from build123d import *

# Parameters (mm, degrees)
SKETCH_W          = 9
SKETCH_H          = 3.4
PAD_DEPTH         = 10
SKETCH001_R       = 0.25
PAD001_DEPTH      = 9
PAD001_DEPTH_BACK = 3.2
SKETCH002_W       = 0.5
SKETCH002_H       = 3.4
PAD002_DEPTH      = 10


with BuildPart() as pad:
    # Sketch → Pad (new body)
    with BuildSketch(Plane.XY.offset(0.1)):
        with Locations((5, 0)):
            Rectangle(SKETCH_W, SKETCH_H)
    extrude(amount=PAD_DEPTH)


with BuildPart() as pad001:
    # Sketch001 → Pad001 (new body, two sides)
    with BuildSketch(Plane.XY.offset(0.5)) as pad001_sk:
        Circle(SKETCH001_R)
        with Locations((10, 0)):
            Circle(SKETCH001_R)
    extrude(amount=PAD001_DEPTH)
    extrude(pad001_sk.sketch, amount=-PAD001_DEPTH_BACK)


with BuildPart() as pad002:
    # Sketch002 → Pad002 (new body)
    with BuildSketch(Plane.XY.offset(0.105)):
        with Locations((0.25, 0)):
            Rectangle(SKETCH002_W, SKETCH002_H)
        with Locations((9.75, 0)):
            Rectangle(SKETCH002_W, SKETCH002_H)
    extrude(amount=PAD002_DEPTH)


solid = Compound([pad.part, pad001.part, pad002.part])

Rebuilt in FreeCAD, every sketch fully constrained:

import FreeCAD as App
import Part
import Sketcher

V = App.Vector
Q = App.Units.Quantity

doc = App.newDocument("Part")
body = doc.addObject("PartDesign::Body", "Body")

# Sketch on XY plane
sketch1 = body.newObject("Sketcher::SketchObject", "Sketch")
sketch1.AttachmentSupport = (doc.getObject("XY_Plane"), [""])
sketch1.MapMode = "FlatFace"
sketch1.AttachmentOffset = App.Placement(V(0, 0, 0.1), App.Rotation())
sketch1.addGeometry(Part.LineSegment(V(0.5, 1.7, 0), V(0.5, -1.7, 0)), False)
sketch1.addGeometry(Part.LineSegment(V(0.5, -1.7, 0), V(9.5, -1.7, 0)), False)
sketch1.addGeometry(Part.LineSegment(V(9.5, -1.7, 0), V(9.5, 1.7, 0)), False)
sketch1.addGeometry(Part.LineSegment(V(9.5, 1.7, 0), V(0.5, 1.7, 0)), False)
sketch1.addConstraint(Sketcher.Constraint("Coincident", 0, 2, 1, 1))
sketch1.addConstraint(Sketcher.Constraint("Coincident", 1, 2, 2, 1))
sketch1.addConstraint(Sketcher.Constraint("Coincident", 2, 2, 3, 1))
sketch1.addConstraint(Sketcher.Constraint("Coincident", 3, 2, 0, 1))
sketch1.addConstraint(Sketcher.Constraint("Vertical", 0))
sketch1.addConstraint(Sketcher.Constraint("Horizontal", 1))
sketch1.addConstraint(Sketcher.Constraint("Vertical", 2))
sketch1.addConstraint(Sketcher.Constraint("Horizontal", 3))
sketch1.addConstraint(Sketcher.Constraint("DistanceX", 1, 1, 1, 2, Q("9 mm")))
sketch1.addConstraint(Sketcher.Constraint("DistanceY", 0, 2, 0, 1, Q("3.4 mm")))
sketch1.addConstraint(Sketcher.Constraint("DistanceX", -1, 1, 0, 2, Q("0.5 mm")))
sketch1.addConstraint(Sketcher.Constraint("DistanceY", 0, 2, -1, 1, Q("1.7 mm")))
pad1 = body.newObject("PartDesign::Pad", "Pad")
pad1.Profile = sketch1
pad1.Length = 10
body2 = doc.addObject("PartDesign::Body", "Body001")
body2.AllowCompound = True

# Sketch on XY plane
sketch2 = body2.newObject("Sketcher::SketchObject", "Sketch001")
sketch2.AttachmentSupport = (doc.getObject("XY_Plane001"), [""])
sketch2.MapMode = "FlatFace"
sketch2.AttachmentOffset = App.Placement(V(0, 0, 0.5), App.Rotation())
sketch2.addGeometry(Part.Circle(V(0, 0, 0), V(0, 0, 1), 0.25), False)
sketch2.addGeometry(Part.Circle(V(10, 0, 0), V(0, 0, 1), 0.25), False)
sketch2.addConstraint(Sketcher.Constraint("Coincident", 0, 3, -1, 1))
sketch2.addConstraint(Sketcher.Constraint("Equal", 0, 1))
sketch2.addConstraint(Sketcher.Constraint("PointOnObject", 1, 3, -1))
sketch2.addConstraint(Sketcher.Constraint("Diameter", 0, Q("0.5 mm")))
sketch2.addConstraint(Sketcher.Constraint("DistanceX", -1, 1, 1, 3, Q("10 mm")))
pad2 = body2.newObject("PartDesign::Pad", "Pad001")
pad2.Profile = sketch2
pad2.Type = "TwoLengths"
pad2.Length = 9
pad2.Length2 = 3.2
body3 = doc.addObject("PartDesign::Body", "Body002")
body3.AllowCompound = True

# Sketch on XY plane
sketch3 = body3.newObject("Sketcher::SketchObject", "Sketch002")
sketch3.AttachmentSupport = (doc.getObject("XY_Plane002"), [""])
sketch3.MapMode = "FlatFace"
sketch3.AttachmentOffset = App.Placement(V(0, 0, 0.105), App.Rotation())
sketch3.addGeometry(Part.LineSegment(V(0, 1.7, 0), V(0, -1.7, 0)), False)
sketch3.addGeometry(Part.LineSegment(V(0, -1.7, 0), V(0.5, -1.7, 0)), False)
sketch3.addGeometry(Part.LineSegment(V(0.5, -1.7, 0), V(0.5, 1.7, 0)), False)
sketch3.addGeometry(Part.LineSegment(V(0.5, 1.7, 0), V(0, 1.7, 0)), False)
sketch3.addGeometry(Part.LineSegment(V(9.5, 1.7, 0), V(9.5, -1.7, 0)), False)
sketch3.addGeometry(Part.LineSegment(V(9.5, -1.7, 0), V(10, -1.7, 0)), False)
sketch3.addGeometry(Part.LineSegment(V(10, -1.7, 0), V(10, 1.7, 0)), False)
sketch3.addGeometry(Part.LineSegment(V(10, 1.7, 0), V(9.5, 1.7, 0)), False)
sketch3.addConstraint(Sketcher.Constraint("Coincident", 0, 2, 1, 1))
sketch3.addConstraint(Sketcher.Constraint("Coincident", 1, 2, 2, 1))
sketch3.addConstraint(Sketcher.Constraint("Coincident", 2, 2, 3, 1))
sketch3.addConstraint(Sketcher.Constraint("Coincident", 3, 2, 0, 1))
sketch3.addConstraint(Sketcher.Constraint("Coincident", 4, 2, 5, 1))
sketch3.addConstraint(Sketcher.Constraint("Coincident", 5, 2, 6, 1))
sketch3.addConstraint(Sketcher.Constraint("Coincident", 6, 2, 7, 1))
sketch3.addConstraint(Sketcher.Constraint("Coincident", 7, 2, 4, 1))
sketch3.addConstraint(Sketcher.Constraint("Vertical", 0))
sketch3.addConstraint(Sketcher.Constraint("Horizontal", 1))
sketch3.addConstraint(Sketcher.Constraint("Vertical", 2))
sketch3.addConstraint(Sketcher.Constraint("Horizontal", 3))
sketch3.addConstraint(Sketcher.Constraint("Vertical", 4))
sketch3.addConstraint(Sketcher.Constraint("Horizontal", 5))
sketch3.addConstraint(Sketcher.Constraint("Vertical", 6))
sketch3.addConstraint(Sketcher.Constraint("Horizontal", 7))
sketch3.addConstraint(Sketcher.Constraint("Symmetric", 0, 2, 3, 2, -1, 1))
sketch3.addConstraint(Sketcher.Constraint("Horizontal", 1, 2, 4, 2))
sketch3.addConstraint(Sketcher.Constraint("Horizontal", 3, 2, 6, 2))
sketch3.addConstraint(Sketcher.Constraint("Equal", 3, 5))
sketch3.addConstraint(Sketcher.Constraint("DistanceX", 1, 1, 1, 2, Q("0.5 mm")))
sketch3.addConstraint(Sketcher.Constraint("DistanceY", 0, 2, 0, 1, Q("3.4 mm")))
sketch3.addConstraint(Sketcher.Constraint("DistanceX", -1, 1, 5, 2, Q("10 mm")))
pad3 = body3.newObject("PartDesign::Pad", "Pad002")
pad3.Profile = sketch3
pad3.Length = 10

doc.recompute()
